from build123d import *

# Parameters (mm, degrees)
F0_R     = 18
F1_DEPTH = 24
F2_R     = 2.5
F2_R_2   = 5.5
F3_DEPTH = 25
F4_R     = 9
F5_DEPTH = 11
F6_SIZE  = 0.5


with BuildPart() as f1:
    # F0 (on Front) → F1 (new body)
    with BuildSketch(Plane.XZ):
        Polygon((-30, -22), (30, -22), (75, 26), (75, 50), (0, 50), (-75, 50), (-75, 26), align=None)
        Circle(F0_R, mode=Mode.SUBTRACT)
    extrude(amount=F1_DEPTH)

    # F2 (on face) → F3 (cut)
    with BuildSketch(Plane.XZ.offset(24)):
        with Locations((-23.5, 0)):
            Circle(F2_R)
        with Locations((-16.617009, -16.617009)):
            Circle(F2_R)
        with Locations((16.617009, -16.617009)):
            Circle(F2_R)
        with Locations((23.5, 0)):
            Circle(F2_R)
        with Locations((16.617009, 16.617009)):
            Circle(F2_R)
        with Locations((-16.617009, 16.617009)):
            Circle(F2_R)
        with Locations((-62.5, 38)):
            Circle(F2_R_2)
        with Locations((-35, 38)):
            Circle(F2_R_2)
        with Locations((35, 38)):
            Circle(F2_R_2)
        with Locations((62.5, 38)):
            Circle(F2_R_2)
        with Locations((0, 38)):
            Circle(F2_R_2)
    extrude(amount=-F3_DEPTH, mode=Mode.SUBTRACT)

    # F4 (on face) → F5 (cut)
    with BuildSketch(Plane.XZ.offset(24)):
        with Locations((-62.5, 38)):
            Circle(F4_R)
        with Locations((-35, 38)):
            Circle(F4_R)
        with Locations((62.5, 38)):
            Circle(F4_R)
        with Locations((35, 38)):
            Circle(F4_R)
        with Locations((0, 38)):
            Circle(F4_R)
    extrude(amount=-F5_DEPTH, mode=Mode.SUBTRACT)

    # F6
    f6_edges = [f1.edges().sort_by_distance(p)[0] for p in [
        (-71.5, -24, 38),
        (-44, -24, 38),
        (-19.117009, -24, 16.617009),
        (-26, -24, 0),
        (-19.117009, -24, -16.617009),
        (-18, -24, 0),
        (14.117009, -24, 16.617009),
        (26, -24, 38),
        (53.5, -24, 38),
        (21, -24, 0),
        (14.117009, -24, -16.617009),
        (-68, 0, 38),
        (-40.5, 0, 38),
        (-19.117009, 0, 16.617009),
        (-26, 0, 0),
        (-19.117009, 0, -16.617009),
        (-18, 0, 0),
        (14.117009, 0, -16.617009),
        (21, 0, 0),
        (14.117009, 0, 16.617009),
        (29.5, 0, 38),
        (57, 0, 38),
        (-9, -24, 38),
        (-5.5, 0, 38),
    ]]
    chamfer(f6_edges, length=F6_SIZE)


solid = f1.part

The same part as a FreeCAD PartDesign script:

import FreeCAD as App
import Part
import Sketcher

V = App.Vector
Q = App.Units.Quantity


def edges_at(feature, points):
    """Names of the edges that pass closest to the given points."""
    edges = feature.Shape.Edges
    near = lambda p: min(range(len(edges)), key=lambda i: edges[i].distToShape(Part.Vertex(*p))[0])
    return sorted({f"Edge{near(p) + 1}" for p in points})


def add_polygon(sketch, points):
    """Adds a closed chain of lines whose ends are joined by coincident constraints."""
    first, n = sketch.GeometryCount, len(points)
    for a, b in zip(points, points[1:] + points[:1]):
        sketch.addGeometry(Part.LineSegment(App.Vector(*a, 0), App.Vector(*b, 0)), False)
    for i in range(n):
        sketch.addConstraint(Sketcher.Constraint("Coincident", first + i, 2, first + (i + 1) % n, 1))

doc = App.newDocument("Part")
body = doc.addObject("PartDesign::Body", "Body")

sketch1 = body.newObject("Sketcher::SketchObject", "Sketch")
sketch1.AttachmentSupport = (doc.getObject("XZ_Plane"), [""])
sketch1.MapMode = "FlatFace"
add_polygon(sketch1, [(-30, -22), (30, -22), (75, 26), (75, 50), (-75, 50), (-75, 26)])
sketch1.addGeometry(Part.Circle(V(0, 0, 0), V(0, 0, 1), 18), False)
sketch1.addConstraint(Sketcher.Constraint("Horizontal", 0))
sketch1.addConstraint(Sketcher.Constraint("Vertical", 2))
sketch1.addConstraint(Sketcher.Constraint("Horizontal", 3))
sketch1.addConstraint(Sketcher.Constraint("Vertical", 4))
sketch1.addConstraint(Sketcher.Constraint("Coincident", 6, 3, -1, 1))
sketch1.addConstraint(Sketcher.Constraint("Symmetric", 1, 2, 4, 2, -2))
sketch1.addConstraint(Sketcher.Constraint("Equal", 1, 5))
sketch1.addConstraint(Sketcher.Constraint("Diameter", 6, Q("36 mm")))
sketch1.addConstraint(Sketcher.Constraint("DistanceX", 0, 1, 0, 2, Q("60 mm")))
sketch1.addConstraint(Sketcher.Constraint("DistanceX", 3, 2, 3, 1, Q("150 mm")))
sketch1.addConstraint(Sketcher.Constraint("DistanceY", 2, 1, 2, 2, Q("24 mm")))
sketch1.addConstraint(Sketcher.Constraint("DistanceY", 0, 2, -1, 1, Q("22 mm")))
sketch1.addConstraint(Sketcher.Constraint("DistanceY", -1, 1, 1, 2, Q("26 mm")))
pad1 = body.newObject("PartDesign::Pad", "Pad")
pad1.Profile = sketch1
pad1.Length = 24

sketch2 = body.newObject("Sketcher::SketchObject", "Sketch001")
sketch2.AttachmentSupport = (doc.getObject("XZ_Plane"), [""])
sketch2.MapMode = "FlatFace"
sketch2.AttachmentOffset = App.Placement(V(0, 0, 24), App.Rotation())
sketch2.addGeometry(Part.Circle(V(-23.5, 0, 0), V(0, 0, 1), 2.5), False)
sketch2.addGeometry(Part.Circle(V(-16.6, -16.6, 0), V(0, 0, 1), 2.5), False)
sketch2.addGeometry(Part.Circle(V(16.6, -16.6, 0), V(0, 0, 1), 2.5), False)
sketch2.addGeometry(Part.Circle(V(23.5, 0, 0), V(0, 0, 1), 2.5), False)
sketch2.addGeometry(Part.Circle(V(16.6, 16.6, 0), V(0, 0, 1), 2.5), False)
sketch2.addGeometry(Part.Circle(V(-16.6, 16.6, 0), V(0, 0, 1), 2.5), False)
sketch2.addGeometry(Part.Circle(V(-62.5, 38, 0), V(0, 0, 1), 5.5), False)
sketch2.addGeometry(Part.Circle(V(-35, 38, 0), V(0, 0, 1), 5.5), False)
sketch2.addGeometry(Part.Circle(V(35, 38, 0), V(0, 0, 1), 5.5), False)
sketch2.addGeometry(Part.Circle(V(62.5, 38, 0), V(0, 0, 1), 5.5), False)
sketch2.addGeometry(Part.Circle(V(0, 38, 0), V(0, 0, 1), 5.5), False)
sketch2.addConstraint(Sketcher.Constraint("Equal", 0, 1))
sketch2.addConstraint(Sketcher.Constraint("Equal", 1, 2))
sketch2.addConstraint(Sketcher.Constraint("Equal", 2, 3))
sketch2.addConstraint(Sketcher.Constraint("Equal", 3, 4))
sketch2.addConstraint(Sketcher.Constraint("Equal", 4, 5))
sketch2.addConstraint(Sketcher.Constraint("Equal", 6, 7))
sketch2.addConstraint(Sketcher.Constraint("Equal", 7, 8))
sketch2.addConstraint(Sketcher.Constraint("Equal", 8, 9))
sketch2.addConstraint(Sketcher.Constraint("Equal", 9, 10))
sketch2.addConstraint(Sketcher.Constraint("Symmetric", 0, 3, 3, 3, -1, 1))
sketch2.addConstraint(Sketcher.Constraint("Symmetric", 1, 3, 4, 3, -1, 1))
sketch2.addConstraint(Sketcher.Constraint("Symmetric", 2, 3, 5, 3, -1, 1))
sketch2.addConstraint(Sketcher.Constraint("Symmetric", 1, 3, 2, 3, -2))
sketch2.addConstraint(Sketcher.Constraint("Symmetric", 7, 3, 8, 3, -2))
sketch2.addConstraint(Sketcher.Constraint("Symmetric", 6, 3, 9, 3, -2))
sketch2.addConstraint(Sketcher.Constraint("PointOnObject", 0, 3, -1))
sketch2.addConstraint(Sketcher.Constraint("PointOnObject", 10, 3, -2))
sketch2.addConstraint(Sketcher.Constraint("Horizontal", 6, 3, 7, 3))
sketch2.addConstraint(Sketcher.Constraint("Horizontal", 9, 3, 10, 3))
sketch2.addConstraint(Sketcher.Constraint("Diameter", 0, Q("5 mm")))
sketch2.addConstraint(Sketcher.Constraint("Diameter", 6, Q("11 mm")))
sketch2.addConstraint(Sketcher.Constraint("DistanceY", -1, 1, 6, 3, Q("38 mm")))
sketch2.addConstraint(Sketcher.Constraint("DistanceX", 7, 3, -1, 1, Q("35 mm")))
sketch2.addConstraint(Sketcher.Constraint("DistanceX", 0, 3, 3, 3, Q("47 mm")))
sketch2.addConstraint(Sketcher.Constraint("DistanceX", 6, 3, 0, 3, Q("39 mm")))
sketch2.addConstraint(Sketcher.Constraint("DistanceX", 1, 3, -1, 1, Q("16.617009 mm")))
sketch2.addConstraint(Sketcher.Constraint("DistanceY", 1, 3, -1, 1, Q("16.617009 mm")))
pocket1 = body.newObject("PartDesign::Pocket", "Pocket")
pocket1.Profile = sketch2
pocket1.Length = 25

sketch3 = body.newObject("Sketcher::SketchObject", "Sketch002")
sketch3.AttachmentSupport = (doc.getObject("XZ_Plane"), [""])
sketch3.MapMode = "FlatFace"
sketch3.AttachmentOffset = App.Placement(V(0, 0, 24), App.Rotation())
sketch3.addGeometry(Part.Circle(V(-62, 38, 0), V(0, 0, 1), 9), False)
sketch3.addGeometry(Part.Circle(V(-35, 38, 0), V(0, 0, 1), 9), False)
sketch3.addGeometry(Part.Circle(V(62, 38, 0), V(0, 0, 1), 9), False)
sketch3.addGeometry(Part.Circle(V(35, 38, 0), V(0, 0, 1), 9), False)
sketch3.addGeometry(Part.Circle(V(0, 38, 0), V(0, 0, 1), 9), False)
sketch3.addConstraint(Sketcher.Constraint("Equal", 0, 1))
sketch3.addConstraint(Sketcher.Constraint("Equal", 1, 2))
sketch3.addConstraint(Sketcher.Constraint("Equal", 2, 3))
sketch3.addConstraint(Sketcher.Constraint("Equal", 3, 4))
sketch3.addConstraint(Sketcher.Constraint("Symmetric", 0, 3, 2, 3, -2))
sketch3.addConstraint(Sketcher.Constraint("Symmetric", 1, 3, 3, 3, -2))
sketch3.addConstraint(Sketcher.Constraint("PointOnObject", 4, 3, -2))
sketch3.addConstraint(Sketcher.Constraint("Horizontal", 0, 3, 1, 3))
sketch3.addConstraint(Sketcher.Constraint("Horizontal", 3, 3, 4, 3))
sketch3.addConstraint(Sketcher.Constraint("Diameter", 0, Q("18 mm")))
sketch3.addConstraint(Sketcher.Constraint("DistanceY", -1, 1, 0, 3, Q("38 mm")))
sketch3.addConstraint(Sketcher.Constraint("DistanceX", 1, 3, -1, 1, Q("35 mm")))
sketch3.addConstraint(Sketcher.Constraint("DistanceX", 0, 3, 2, 3, Q("125 mm")))
pocket2 = body.newObject("PartDesign::Pocket", "Pocket001")
pocket2.Profile = sketch3
pocket2.Length = 11
doc.recompute()

chamfer = body.newObject("PartDesign::Chamfer", "Chamfer")
chamfer.Base = (pocket2, edges_at(pocket2, [
    (-71.5, -24, 38),
    (-44, -24, 38),
    (-19.117, -24, 16.617),
    (-26, -24, 0),
    (-19.117, -24, -16.617),
    (-18, -24, 0),
    (14.117, -24, 16.617),
    (26, -24, 38),
    (53.5, -24, 38),
    (21, -24, 0),
    (14.117, -24, -16.617),
    (-68, 0, 38),
    (-40.5, 0, 38),
    (-19.117, 0, 16.617),
    (-26, 0, 0),
    (-19.117, 0, -16.617),
    (-18, 0, 0),
    (14.117, 0, -16.617),
    (21, 0, 0),
    (14.117, 0, 16.617),
    (29.5, 0, 38),
    (57, 0, 38),
    (-9, -24, 38),
    (-5.5, 0, 38),
]))
chamfer.Size = 0.5

doc.recompute()
